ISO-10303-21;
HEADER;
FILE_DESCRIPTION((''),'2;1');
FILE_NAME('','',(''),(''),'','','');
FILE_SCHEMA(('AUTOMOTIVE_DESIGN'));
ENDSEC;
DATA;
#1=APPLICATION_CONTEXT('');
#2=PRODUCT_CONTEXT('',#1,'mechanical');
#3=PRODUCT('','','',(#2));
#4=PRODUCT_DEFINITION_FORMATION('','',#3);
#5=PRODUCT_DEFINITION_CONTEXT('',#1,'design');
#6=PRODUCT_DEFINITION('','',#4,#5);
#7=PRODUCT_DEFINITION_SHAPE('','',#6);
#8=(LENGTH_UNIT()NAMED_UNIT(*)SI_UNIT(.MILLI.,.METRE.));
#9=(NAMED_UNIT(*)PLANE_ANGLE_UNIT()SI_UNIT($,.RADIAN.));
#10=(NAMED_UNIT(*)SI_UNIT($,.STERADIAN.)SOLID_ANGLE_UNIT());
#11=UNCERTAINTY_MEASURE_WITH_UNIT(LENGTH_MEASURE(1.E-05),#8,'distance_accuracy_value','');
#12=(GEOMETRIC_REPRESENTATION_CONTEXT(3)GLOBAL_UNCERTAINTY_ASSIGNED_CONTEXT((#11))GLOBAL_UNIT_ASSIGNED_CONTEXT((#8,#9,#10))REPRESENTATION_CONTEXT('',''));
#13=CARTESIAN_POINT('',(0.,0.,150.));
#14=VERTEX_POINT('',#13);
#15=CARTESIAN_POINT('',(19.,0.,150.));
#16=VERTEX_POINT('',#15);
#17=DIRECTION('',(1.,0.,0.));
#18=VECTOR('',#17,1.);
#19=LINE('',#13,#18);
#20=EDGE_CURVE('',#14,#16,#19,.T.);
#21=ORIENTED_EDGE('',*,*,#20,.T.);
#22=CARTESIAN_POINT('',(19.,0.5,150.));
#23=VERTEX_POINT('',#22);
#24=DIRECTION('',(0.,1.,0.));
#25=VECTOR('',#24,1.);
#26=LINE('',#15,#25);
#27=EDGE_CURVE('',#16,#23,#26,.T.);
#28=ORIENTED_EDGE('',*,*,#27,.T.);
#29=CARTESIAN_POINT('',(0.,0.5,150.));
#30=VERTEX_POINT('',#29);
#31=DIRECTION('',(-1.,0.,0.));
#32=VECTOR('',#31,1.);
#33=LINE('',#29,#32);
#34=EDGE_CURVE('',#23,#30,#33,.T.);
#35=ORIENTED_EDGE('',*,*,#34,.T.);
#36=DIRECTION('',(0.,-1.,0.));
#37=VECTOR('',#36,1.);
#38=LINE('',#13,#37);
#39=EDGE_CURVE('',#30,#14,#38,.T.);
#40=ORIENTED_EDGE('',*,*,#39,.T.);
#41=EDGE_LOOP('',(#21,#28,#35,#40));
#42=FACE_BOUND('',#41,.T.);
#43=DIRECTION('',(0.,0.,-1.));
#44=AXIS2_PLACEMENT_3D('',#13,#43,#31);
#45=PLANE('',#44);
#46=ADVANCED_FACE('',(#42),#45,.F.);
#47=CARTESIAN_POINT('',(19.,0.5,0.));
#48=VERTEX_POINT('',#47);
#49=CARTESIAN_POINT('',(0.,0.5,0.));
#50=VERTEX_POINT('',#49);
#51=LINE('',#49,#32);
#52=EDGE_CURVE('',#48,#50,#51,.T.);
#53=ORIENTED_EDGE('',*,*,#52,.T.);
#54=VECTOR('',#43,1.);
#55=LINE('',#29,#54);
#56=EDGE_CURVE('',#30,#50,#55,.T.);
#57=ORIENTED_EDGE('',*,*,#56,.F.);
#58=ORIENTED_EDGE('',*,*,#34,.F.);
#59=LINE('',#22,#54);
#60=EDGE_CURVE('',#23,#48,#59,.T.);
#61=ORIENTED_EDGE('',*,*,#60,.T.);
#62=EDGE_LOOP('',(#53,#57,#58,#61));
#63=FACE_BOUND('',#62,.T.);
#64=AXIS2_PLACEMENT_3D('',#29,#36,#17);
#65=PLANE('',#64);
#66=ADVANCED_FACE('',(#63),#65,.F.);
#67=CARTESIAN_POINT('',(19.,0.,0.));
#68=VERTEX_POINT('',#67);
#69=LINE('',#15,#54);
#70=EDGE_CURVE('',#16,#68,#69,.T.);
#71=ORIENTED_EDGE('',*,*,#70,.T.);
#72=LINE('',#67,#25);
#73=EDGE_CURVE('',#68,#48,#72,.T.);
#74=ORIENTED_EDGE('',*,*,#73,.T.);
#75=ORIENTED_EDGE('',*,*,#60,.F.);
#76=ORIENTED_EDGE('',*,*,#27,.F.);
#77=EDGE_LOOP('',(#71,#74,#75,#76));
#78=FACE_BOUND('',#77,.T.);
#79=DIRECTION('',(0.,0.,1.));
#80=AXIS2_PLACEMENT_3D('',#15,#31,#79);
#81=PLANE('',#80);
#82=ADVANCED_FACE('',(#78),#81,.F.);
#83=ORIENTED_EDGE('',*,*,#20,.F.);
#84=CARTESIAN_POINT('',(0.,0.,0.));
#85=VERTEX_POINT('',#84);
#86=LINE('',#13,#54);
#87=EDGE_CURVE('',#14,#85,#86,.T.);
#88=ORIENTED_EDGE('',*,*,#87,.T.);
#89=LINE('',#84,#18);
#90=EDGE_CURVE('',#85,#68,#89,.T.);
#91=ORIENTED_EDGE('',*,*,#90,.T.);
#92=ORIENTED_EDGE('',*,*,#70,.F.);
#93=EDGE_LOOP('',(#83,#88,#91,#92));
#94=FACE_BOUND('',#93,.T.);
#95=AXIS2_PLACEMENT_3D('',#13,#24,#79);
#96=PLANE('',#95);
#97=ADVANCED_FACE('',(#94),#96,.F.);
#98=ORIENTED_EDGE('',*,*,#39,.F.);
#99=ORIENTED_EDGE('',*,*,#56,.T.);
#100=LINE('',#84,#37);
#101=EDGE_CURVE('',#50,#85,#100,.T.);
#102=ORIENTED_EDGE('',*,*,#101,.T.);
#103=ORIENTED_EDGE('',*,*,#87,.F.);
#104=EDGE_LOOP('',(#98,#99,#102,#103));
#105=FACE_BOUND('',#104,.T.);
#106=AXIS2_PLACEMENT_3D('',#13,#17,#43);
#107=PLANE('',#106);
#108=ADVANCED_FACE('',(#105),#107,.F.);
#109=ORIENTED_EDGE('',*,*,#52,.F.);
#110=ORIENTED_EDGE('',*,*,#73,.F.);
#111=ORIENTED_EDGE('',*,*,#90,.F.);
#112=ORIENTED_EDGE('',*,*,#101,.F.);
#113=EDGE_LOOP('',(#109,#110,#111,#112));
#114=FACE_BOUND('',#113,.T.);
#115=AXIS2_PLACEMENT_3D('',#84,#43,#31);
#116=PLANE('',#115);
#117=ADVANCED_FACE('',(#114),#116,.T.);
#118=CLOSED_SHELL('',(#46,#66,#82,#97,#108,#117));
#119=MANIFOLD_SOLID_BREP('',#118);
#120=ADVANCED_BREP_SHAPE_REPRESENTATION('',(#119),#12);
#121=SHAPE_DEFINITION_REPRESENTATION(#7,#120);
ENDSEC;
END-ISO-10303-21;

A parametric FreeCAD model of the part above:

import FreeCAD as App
import Part
import Sketcher

V = App.Vector

doc = App.newDocument("Part")
params = doc.addObject("Spreadsheet::Sheet", "Params")
for row, (alias, value) in enumerate([
    ("sketch1_width", "19 mm"),
    ("sketch1_height", "0.5 mm"),
    ("pad1_length", "150 mm"),
], start=1):
    params.set(f"A{row}", alias)
    params.set(f"B{row}", "=" + value)
    params.setAlias(f"B{row}", alias)

body = doc.addObject("PartDesign::Body", "Body")

sketch1 = doc.addObject("Sketcher::SketchObject", "Sketch")
body.addObject(sketch1)
sketch1.AttachmentSupport = (doc.XY_Plane, [""])
sketch1.MapMode = "FlatFace"
sketch1.addGeometry([
    Part.LineSegment(V(0, 0.5, 0), V(0, 0, 0)),
    Part.LineSegment(V(0, 0, 0), V(19, 0, 0)),
    Part.LineSegment(V(19, 0, 0), V(19, 0.5, 0)),
    Part.LineSegment(V(19, 0.5, 0), V(0, 0.5, 0)),
], False)
sketch1.addConstraint([
    Sketcher.Constraint("Coincident", 0, 2, 1, 1),
    Sketcher.Constraint("Coincident", 1, 2, 2, 1),
    Sketcher.Constraint("Coincident", 2, 2, 3, 1),
    Sketcher.Constraint("Coincident", 3, 2, 0, 1),
    Sketcher.Constraint("Vertical", 0),
    Sketcher.Constraint("Horizontal", 1),
    Sketcher.Constraint("Vertical", 2),
    Sketcher.Constraint("Horizontal", 3),
    Sketcher.Constraint("Coincident", 0, 2, -1, 1),
    Sketcher.Constraint("DistanceX", 1, 1, 1, 2, 19.0),
    Sketcher.Constraint("DistanceY", 0, 2, 0, 1, 0.5),
])
sketch1.setExpression("Constraints[9]", "Params.sketch1_width")
sketch1.setExpression("Constraints[10]", "Params.sketch1_height")
pad1 = doc.addObject("PartDesign::Pad", "Pad")
body.addObject(pad1)
pad1.Profile = sketch1
pad1.setExpression("Length", "Params.pad1_length")

doc.recompute()
